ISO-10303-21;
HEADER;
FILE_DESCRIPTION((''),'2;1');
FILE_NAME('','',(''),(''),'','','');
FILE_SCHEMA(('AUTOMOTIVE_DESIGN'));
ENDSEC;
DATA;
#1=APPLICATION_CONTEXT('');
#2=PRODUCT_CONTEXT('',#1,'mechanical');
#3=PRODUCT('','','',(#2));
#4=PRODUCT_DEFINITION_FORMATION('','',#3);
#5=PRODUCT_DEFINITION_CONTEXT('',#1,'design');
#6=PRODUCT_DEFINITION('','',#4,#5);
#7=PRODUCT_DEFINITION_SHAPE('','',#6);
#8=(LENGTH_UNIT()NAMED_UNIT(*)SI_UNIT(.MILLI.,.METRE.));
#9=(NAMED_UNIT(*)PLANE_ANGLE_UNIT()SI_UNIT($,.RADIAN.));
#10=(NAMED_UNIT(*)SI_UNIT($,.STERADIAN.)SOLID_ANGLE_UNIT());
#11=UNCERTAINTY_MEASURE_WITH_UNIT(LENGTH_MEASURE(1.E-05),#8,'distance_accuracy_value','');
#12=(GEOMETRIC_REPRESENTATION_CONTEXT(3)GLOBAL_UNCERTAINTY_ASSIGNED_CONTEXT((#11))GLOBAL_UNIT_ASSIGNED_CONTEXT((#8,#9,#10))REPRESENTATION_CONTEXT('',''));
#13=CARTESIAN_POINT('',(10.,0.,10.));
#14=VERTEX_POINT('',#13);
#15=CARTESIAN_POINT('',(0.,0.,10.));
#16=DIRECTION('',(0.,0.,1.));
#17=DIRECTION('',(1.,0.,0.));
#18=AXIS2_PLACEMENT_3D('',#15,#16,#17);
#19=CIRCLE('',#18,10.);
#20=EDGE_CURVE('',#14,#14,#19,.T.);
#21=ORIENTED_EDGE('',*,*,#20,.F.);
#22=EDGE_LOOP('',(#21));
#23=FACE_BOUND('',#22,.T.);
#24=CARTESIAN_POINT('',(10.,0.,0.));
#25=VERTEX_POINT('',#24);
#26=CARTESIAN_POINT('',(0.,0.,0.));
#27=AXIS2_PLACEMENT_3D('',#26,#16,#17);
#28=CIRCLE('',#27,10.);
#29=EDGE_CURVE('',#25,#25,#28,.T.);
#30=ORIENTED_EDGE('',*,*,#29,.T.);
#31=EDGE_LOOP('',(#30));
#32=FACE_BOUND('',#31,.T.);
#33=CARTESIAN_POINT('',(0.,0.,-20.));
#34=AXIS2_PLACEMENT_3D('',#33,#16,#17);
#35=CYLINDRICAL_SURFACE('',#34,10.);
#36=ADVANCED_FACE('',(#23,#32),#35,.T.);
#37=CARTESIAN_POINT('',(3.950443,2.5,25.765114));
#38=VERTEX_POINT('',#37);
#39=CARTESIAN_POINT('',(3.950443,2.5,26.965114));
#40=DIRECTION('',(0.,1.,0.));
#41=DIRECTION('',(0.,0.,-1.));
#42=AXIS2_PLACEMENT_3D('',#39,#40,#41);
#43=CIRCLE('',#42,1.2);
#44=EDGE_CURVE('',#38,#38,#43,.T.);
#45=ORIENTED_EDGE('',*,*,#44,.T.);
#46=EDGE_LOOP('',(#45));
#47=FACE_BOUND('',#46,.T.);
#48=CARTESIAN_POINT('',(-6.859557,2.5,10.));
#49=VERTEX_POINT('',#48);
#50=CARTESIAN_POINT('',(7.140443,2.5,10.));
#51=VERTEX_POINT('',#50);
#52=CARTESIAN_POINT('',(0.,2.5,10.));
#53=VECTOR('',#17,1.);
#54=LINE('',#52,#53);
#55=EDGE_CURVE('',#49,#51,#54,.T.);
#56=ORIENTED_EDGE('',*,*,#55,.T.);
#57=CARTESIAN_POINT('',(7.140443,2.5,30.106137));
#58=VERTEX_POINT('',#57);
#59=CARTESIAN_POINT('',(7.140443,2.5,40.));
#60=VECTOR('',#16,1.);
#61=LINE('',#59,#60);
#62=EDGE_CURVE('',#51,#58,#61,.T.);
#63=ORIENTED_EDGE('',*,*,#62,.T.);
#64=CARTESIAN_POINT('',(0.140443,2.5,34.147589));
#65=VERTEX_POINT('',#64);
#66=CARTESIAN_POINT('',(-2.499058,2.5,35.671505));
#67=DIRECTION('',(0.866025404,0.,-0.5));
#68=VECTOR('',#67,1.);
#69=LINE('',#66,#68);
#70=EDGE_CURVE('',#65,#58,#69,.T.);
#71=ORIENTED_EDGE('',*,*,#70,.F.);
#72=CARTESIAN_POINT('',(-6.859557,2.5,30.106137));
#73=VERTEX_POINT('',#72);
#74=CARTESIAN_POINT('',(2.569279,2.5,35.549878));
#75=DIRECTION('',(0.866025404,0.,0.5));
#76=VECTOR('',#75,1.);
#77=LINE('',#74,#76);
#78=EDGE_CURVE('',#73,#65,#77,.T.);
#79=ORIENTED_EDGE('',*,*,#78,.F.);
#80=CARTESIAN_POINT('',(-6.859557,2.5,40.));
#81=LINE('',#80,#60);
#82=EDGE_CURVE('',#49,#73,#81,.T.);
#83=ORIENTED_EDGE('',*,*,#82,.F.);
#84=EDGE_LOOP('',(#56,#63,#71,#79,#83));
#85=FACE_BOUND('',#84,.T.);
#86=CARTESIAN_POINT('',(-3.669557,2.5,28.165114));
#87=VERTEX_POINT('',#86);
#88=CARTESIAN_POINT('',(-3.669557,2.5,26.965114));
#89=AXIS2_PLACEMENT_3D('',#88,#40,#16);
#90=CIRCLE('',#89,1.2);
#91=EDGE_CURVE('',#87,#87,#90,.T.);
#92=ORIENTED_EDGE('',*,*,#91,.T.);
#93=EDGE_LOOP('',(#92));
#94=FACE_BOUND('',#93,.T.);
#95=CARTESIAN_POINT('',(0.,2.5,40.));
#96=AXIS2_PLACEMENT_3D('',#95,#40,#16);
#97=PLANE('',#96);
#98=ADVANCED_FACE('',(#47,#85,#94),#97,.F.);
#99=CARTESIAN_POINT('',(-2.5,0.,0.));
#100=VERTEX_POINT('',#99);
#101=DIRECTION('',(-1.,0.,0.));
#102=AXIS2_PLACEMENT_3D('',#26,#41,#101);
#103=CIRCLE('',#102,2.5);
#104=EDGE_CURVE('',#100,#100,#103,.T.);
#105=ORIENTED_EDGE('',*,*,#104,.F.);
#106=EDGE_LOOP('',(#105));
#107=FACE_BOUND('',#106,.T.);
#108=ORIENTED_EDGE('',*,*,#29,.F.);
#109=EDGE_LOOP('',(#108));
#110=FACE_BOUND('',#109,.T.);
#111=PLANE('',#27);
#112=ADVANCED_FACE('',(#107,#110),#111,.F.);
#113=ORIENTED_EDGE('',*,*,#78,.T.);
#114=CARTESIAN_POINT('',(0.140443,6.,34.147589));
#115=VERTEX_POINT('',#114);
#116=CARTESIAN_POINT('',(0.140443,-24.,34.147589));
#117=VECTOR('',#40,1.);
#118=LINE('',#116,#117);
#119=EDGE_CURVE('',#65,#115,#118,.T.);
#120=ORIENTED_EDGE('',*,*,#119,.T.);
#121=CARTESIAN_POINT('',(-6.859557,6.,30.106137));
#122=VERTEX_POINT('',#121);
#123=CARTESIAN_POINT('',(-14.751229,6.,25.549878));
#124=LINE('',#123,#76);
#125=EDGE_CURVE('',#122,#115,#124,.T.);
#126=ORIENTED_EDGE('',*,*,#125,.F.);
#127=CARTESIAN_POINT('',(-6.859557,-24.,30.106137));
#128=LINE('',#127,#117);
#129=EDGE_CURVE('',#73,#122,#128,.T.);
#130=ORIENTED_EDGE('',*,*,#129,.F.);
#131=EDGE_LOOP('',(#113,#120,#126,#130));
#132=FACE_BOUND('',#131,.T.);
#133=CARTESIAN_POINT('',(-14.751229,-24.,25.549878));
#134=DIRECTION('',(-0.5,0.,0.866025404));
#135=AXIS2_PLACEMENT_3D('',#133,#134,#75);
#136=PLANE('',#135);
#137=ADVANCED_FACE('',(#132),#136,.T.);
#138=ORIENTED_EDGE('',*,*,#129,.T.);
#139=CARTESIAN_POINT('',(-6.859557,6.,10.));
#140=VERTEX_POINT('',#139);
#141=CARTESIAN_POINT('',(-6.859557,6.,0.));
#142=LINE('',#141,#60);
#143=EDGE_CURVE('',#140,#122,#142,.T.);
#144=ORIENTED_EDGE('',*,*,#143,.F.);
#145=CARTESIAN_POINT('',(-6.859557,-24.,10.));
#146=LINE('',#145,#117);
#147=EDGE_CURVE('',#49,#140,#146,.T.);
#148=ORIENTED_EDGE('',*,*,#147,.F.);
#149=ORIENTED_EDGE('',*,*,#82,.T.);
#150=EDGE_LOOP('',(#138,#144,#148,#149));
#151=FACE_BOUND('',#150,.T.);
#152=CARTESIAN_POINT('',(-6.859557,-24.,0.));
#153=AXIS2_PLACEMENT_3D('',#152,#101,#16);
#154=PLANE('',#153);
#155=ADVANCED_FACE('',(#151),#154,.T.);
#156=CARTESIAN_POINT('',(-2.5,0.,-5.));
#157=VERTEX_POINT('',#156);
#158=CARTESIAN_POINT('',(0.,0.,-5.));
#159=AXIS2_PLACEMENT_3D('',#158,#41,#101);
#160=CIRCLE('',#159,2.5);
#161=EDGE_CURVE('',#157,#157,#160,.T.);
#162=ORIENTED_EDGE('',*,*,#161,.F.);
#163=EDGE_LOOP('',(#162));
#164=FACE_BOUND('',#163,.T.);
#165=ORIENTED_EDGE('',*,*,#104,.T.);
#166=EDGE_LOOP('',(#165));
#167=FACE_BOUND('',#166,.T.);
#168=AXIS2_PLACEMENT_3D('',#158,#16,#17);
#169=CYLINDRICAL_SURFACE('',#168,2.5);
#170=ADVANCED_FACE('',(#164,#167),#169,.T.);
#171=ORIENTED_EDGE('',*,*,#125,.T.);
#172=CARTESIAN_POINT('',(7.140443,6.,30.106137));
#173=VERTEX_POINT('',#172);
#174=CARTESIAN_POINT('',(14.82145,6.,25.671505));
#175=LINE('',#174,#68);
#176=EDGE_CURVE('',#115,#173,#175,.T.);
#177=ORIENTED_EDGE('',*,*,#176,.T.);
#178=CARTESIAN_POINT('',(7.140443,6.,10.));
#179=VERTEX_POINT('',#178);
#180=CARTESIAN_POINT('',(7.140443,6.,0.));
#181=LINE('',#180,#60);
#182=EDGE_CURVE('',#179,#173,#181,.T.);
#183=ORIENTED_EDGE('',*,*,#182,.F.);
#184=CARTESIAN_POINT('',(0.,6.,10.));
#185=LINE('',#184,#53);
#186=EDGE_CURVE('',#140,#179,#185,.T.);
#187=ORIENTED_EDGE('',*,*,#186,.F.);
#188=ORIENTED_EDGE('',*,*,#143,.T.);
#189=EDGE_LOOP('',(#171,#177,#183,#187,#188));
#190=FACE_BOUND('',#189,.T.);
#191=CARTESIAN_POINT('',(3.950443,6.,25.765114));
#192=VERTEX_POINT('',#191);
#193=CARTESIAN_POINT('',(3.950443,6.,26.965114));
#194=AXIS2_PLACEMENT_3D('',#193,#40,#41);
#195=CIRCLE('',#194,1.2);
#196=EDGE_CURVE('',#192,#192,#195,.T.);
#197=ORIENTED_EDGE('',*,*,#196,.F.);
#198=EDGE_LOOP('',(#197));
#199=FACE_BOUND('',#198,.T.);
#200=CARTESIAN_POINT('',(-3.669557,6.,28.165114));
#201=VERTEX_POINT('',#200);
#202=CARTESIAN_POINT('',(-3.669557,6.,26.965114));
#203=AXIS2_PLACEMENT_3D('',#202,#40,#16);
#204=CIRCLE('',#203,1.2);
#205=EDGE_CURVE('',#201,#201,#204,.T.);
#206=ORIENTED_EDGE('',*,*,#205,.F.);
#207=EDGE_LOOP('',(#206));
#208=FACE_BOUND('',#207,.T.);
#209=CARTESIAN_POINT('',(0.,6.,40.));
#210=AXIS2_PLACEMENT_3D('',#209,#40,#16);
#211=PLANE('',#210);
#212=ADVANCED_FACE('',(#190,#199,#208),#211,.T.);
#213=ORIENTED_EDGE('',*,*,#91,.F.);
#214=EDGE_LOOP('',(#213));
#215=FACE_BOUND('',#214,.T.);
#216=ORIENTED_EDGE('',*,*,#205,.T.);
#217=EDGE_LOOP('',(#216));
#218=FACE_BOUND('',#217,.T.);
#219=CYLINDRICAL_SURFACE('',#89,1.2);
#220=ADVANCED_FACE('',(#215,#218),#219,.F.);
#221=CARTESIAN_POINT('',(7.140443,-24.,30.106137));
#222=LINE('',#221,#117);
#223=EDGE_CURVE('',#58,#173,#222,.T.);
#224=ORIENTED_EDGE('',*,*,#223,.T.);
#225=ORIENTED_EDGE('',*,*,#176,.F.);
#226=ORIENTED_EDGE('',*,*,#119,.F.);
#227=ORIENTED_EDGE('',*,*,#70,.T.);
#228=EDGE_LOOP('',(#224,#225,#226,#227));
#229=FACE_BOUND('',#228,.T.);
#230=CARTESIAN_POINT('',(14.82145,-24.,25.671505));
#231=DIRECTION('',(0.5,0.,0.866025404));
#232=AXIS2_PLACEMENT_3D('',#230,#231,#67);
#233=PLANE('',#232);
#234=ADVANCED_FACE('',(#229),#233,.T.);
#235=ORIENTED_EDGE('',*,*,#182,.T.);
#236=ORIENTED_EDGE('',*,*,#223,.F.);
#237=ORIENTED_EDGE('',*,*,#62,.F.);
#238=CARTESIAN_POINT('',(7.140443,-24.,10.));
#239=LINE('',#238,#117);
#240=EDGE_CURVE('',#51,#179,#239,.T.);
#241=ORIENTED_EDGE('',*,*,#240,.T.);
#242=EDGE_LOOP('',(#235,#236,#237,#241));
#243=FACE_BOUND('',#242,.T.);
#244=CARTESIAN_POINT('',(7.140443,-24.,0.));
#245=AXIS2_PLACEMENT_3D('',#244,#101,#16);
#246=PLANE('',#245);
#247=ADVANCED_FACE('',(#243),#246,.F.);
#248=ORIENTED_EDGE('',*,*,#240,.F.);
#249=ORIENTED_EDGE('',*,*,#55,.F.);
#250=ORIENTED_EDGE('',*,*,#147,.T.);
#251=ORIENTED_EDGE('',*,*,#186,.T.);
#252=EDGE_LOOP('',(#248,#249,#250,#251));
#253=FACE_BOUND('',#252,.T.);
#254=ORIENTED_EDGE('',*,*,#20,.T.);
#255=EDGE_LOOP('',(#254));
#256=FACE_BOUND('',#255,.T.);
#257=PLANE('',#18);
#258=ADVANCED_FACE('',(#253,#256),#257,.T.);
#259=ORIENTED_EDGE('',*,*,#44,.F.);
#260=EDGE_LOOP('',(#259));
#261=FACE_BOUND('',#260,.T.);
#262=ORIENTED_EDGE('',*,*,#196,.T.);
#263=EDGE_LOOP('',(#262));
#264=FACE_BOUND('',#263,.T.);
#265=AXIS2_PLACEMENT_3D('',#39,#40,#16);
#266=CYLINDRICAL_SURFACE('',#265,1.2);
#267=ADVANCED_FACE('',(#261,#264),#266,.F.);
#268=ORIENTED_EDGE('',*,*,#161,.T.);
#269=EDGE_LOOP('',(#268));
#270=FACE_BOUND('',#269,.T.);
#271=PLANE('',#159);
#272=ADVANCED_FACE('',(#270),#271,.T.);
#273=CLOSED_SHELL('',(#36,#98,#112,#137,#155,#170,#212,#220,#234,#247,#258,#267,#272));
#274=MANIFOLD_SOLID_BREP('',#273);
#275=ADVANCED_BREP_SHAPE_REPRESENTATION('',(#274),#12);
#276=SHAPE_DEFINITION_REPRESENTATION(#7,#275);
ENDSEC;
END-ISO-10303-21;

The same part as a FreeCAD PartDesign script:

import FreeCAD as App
import Part
import Sketcher
from FreeCAD import Vector
Q = App.Units.Quantity


def edges_at(feature, points):
    """Names of the edges that pass closest to the given points."""
    edges = feature.Shape.Edges
    near = lambda p: min(range(len(edges)), key=lambda i: edges[i].distToShape(Part.Vertex(*p))[0])
    return sorted({f"Edge{near(p) + 1}" for p in points})


def add_polygon(sketch, points):
    """Adds a closed chain of lines whose ends are joined by coincident constraints."""
    first, n = sketch.GeometryCount, len(points)
    for a, b in zip(points, points[1:] + points[:1]):
        sketch.addGeometry(Part.LineSegment(App.Vector(*a, 0), App.Vector(*b, 0)), False)
    for i in range(n):
        sketch.addConstraint(Sketcher.Constraint("Coincident", first + i, 2, first + (i + 1) % n, 1))

doc = App.newDocument("Part")
params = doc.addObject("Spreadsheet::Sheet", "Params")
for row, (alias, value) in enumerate([
    ("sketch1_diameter", "30 mm"),
    ("pad1_length", "10 mm"),
    ("sketch2_diameter", "5 mm"),
    ("pad2_length", "5 mm"),
    ("sketch3_height", "3.5 mm"),
    ("pad3_length", "30 mm"),
    ("chamfer_size", "10 mm"),
    ("chamfer2_size", "10 mm"),
    ("sketch4_diameter", "2.4 mm"),
    ("pocket1_length", "30 mm"),
    ("sketch5_height", "20 mm"),
    ("pocket2_length", "30 mm"),
    ("sketch6_diameter", "30 mm"),
    ("sketch6_diameter2", "20 mm"),
    ("pocket3_length", "30 mm"),
    ("pad4_length", "3.5 mm"),
    ("sketch8_diameter", "2.4 mm"),
    ("pocket4_length", "3.5 mm"),
], start=1):
    params.set(f"A{row}", alias)
    params.set(f"B{row}", "=" + value)
    params.setAlias(f"B{row}", alias)

body = doc.addObject("PartDesign::Body", "Body")

# Sketch on XY plane
sketch1 = doc.addObject("Sketcher::SketchObject", "Sketch")
body.addObject(sketch1)
sketch1.AttachmentSupport = (doc.XY_Plane, [""])
sketch1.MapMode = "FlatFace"
sketch1.addGeometry(Part.Circle(Vector(0, 0, 0), Vector(0, 0, 1), 15), False)
sketch1.addConstraint([
    Sketcher.Constraint("Coincident", 0, 3, -1, 1),
    Sketcher.Constraint("Diameter", 0, Q("30 mm")),
])
sketch1.setExpression("Constraints[1]", "Params.sketch1_diameter")
pad1 = doc.addObject("PartDesign::Pad", "Pad")
body.addObject(pad1)
pad1.Profile = sketch1
pad1.setExpression("Length", "Params.pad1_length")

# Sketch on XY plane
sketch2 = doc.addObject("Sketcher::SketchObject", "Sketch001")
body.addObject(sketch2)
sketch2.AttachmentSupport = (doc.XY_Plane, [""])
sketch2.MapMode = "FlatFace"
sketch2.addGeometry(Part.Circle(Vector(0, 0, 0), Vector(0, 0, 1), 2.5), False)
sketch2.addConstraint([
    Sketcher.Constraint("Coincident", 0, 3, -1, 1),
    Sketcher.Constraint("Diameter", 0, Q("5 mm")),
])
sketch2.setExpression("Constraints[1]", "Params.sketch2_diameter")
pad2 = doc.addObject("PartDesign::Pad", "Pad001")
body.addObject(pad2)
pad2.Profile = sketch2
pad2.setExpression("Length", "Params.pad2_length")
pad2.Reversed = True

# Sketch on XY plane
sketch3 = doc.addObject("Sketcher::SketchObject", "Sketch002")
body.addObject(sketch3)
sketch3.AttachmentSupport = (doc.XY_Plane, [""])
sketch3.MapMode = "FlatFace"
sketch3.AttachmentOffset = App.Placement(Vector(0, 0, 10), App.Rotation())
add_polygon(sketch3, [(-13.5, 6), (-13.5, 2.5), (13.7, 2.5), (13.7, 6)])  # lines 0-3
sketch3.addConstraint([
    Sketcher.Constraint("Vertical", 0),
    Sketcher.Constraint("Horizontal", 1),
    Sketcher.Constraint("Vertical", 2),
    Sketcher.Constraint("Horizontal", 3),
    Sketcher.Constraint("DistanceY", 0, 2, 0, 1, Q("3.5 mm")),
    Sketcher.Constraint("DistanceY", -1, 1, 2, 2, Q("6 mm")),
    Sketcher.Constraint("DistanceX", 1, 1, 1, 2, Q("27.214568 mm")),
    Sketcher.Constraint("DistanceX", 0, 2, -1, 1, Q("13.466841 mm")),
])
sketch3.setExpression("Constraints[8]", "Params.sketch3_height")
pad3 = doc.addObject("PartDesign::Pad", "Pad002")
body.addObject(pad3)
pad3.Profile = sketch3
pad3.setExpression("Length", "Params.pad3_length")
doc.recompute()

chamfer = doc.addObject("PartDesign::Chamfer", "Chamfer")
body.addObject(chamfer)
chamfer.Base = (pad3, edges_at(pad3, [(13.748, 4.25, 40)]))
chamfer.setExpression("Size", "Params.chamfer_size")
doc.recompute()

chamfer2 = doc.addObject("PartDesign::Chamfer", "Chamfer001")
body.addObject(chamfer2)
chamfer2.Base = (chamfer, edges_at(chamfer, [(-13.467, 4.25, 40)]))
chamfer2.setExpression("Size", "Params.chamfer2_size")

# Sketch on XZ plane
sketch4 = doc.addObject("Sketcher::SketchObject", "Sketch003")
body.addObject(sketch4)
sketch4.AttachmentSupport = (doc.XZ_Plane, [""])
sketch4.MapMode = "FlatFace"
sketch4.AttachmentOffset = App.Placement(Vector(0, 0, -6), App.Rotation())
sketch4.addGeometry([
    Part.Circle(Vector(-2.7, 26.1, 0), Vector(0, 0, 1), 1.2),
    Part.Circle(Vector(3, 26.1, 0), Vector(0, 0, 1), 1.2),
], False)
sketch4.addConstraint([
    Sketcher.Constraint("Equal", 0, 1),
    Sketcher.Constraint("Horizontal", 0, 3, 1, 3),
    Sketcher.Constraint("Diameter", 0, Q("2.4 mm")),
    Sketcher.Constraint("DistanceX", 0, 3, 1, 3, Q("5.62 mm")),
    Sketcher.Constraint("DistanceX", 0, 3, -1, 1, Q("2.669557 mm")),
    Sketcher.Constraint("DistanceY", -1, 1, 0, 3, Q("26.064685 mm")),
])
sketch4.setExpression("Constraints[2]", "Params.sketch4_diameter")
pocket1 = doc.addObject("PartDesign::Pocket", "Pocket")
body.addObject(pocket1)
pocket1.Profile = sketch4
pocket1.setExpression("Length", "Params.pocket1_length")
pocket1.Reversed = True

# Sketch on XZ plane
sketch5 = doc.addObject("Sketcher::SketchObject", "Sketch004")
body.addObject(sketch5)
sketch5.AttachmentSupport = (doc.XZ_Plane, [""])
sketch5.MapMode = "FlatFace"
sketch5.AttachmentOffset = App.Placement(Vector(0, 0, -6), App.Rotation())
add_polygon(sketch5, [(-7, 30), (-7, 10), (-13, 10), (-13, 30), (-3, 40), (4, 40), (14, 30), (14, 10), (7, 10), (7, 30), (0, 34)])  # lines 0-10
sketch5.addConstraint([
    Sketcher.Constraint("Vertical", 0),
    Sketcher.Constraint("Horizontal", 1),
    Sketcher.Constraint("Vertical", 2),
    Sketcher.Constraint("Horizontal", 4),
    Sketcher.Constraint("Vertical", 6),
    Sketcher.Constraint("Horizontal", 7),
    Sketcher.Constraint("Vertical", 8),
    Sketcher.Constraint("Perpendicular", 3, 5),
    Sketcher.Constraint("Horizontal", 2, 2, 5, 2),
    Sketcher.Constraint("Horizontal", 1, 2, 6, 2),
    Sketcher.Constraint("Horizontal", 8, 2, 10, 2),
    Sketcher.Constraint("Equal", 1, 7),
    Sketcher.Constraint("Equal", 3, 5),
    Sketcher.Constraint("Equal", 9, 10),
    Sketcher.Constraint("DistanceY", 2, 1, 2, 2, Q("20 mm")),
    Sketcher.Constraint("Angle", 9, Q("150 deg")),
    Sketcher.Constraint("DistanceY", -1, 1, 0, 2, Q("10 mm")),
    Sketcher.Constraint("DistanceY", -1, 1, 3, 2, Q("40 mm")),
    Sketcher.Constraint("DistanceX", 0, 2, 7, 2, Q("14 mm")),
    Sketcher.Constraint("DistanceX", 4, 1, 4, 2, Q("7.214568 mm")),
    Sketcher.Constraint("DistanceY", 0, 2, 0, 1, Q("20.106137 mm")),
    Sketcher.Constraint("DistanceX", 1, 2, -1, 1, Q("13.466841 mm")),
])
sketch5.setExpression("Constraints[25]", "Params.sketch5_height")
pocket2 = doc.addObject("PartDesign::Pocket", "Pocket001")
body.addObject(pocket2)
pocket2.Profile = sketch5
pocket2.setExpression("Length", "Params.pocket2_length")
pocket2.Reversed = True

# Sketch on XY plane
sketch6 = doc.addObject("Sketcher::SketchObject", "Sketch005")
body.addObject(sketch6)
sketch6.AttachmentSupport = (doc.XY_Plane, [""])
sketch6.MapMode = "FlatFace"
sketch6.AttachmentOffset = App.Placement(Vector(0, 0, -20), App.Rotation())
sketch6.addGeometry([
    Part.Circle(Vector(0, 0, 0), Vector(0, 0, 1), 15),
    Part.Circle(Vector(0, 0, 0), Vector(0, 0, 1), 10),
], False)
sketch6.addConstraint([
    Sketcher.Constraint("Coincident", 0, 3, -1, 1),
    Sketcher.Constraint("Coincident", 1, 3, -1, 1),
    Sketcher.Constraint("Diameter", 0, Q("30 mm")),
    Sketcher.Constraint("Diameter", 1, Q("20 mm")),
])
sketch6.setExpression("Constraints[2]", "Params.sketch6_diameter")
sketch6.setExpression("Constraints[3]", "Params.sketch6_diameter2")
pocket3 = doc.addObject("PartDesign::Pocket", "Pocket002")
body.addObject(pocket3)
pocket3.Profile = sketch6
pocket3.setExpression("Length", "Params.pocket3_length")
pocket3.Reversed = True

# Sketch on XZ plane
sketch7 = doc.addObject("Sketcher::SketchObject", "Sketch006")
body.addObject(sketch7)
sketch7.AttachmentSupport = (doc.XZ_Plane, [""])
sketch7.MapMode = "FlatFace"
sketch7.AttachmentOffset = App.Placement(Vector(0, 0, -6), App.Rotation())
sketch7.addGeometry([
    Part.Circle(Vector(-2.7, 26.1, 0), Vector(0, 0, 1), 1.2),
    Part.Circle(Vector(3, 26.1, 0), Vector(0, 0, 1), 1.2),
], False)
sketch7.addConstraint([
    Sketcher.Constraint("Horizontal", 0, 3, 1, 3),
    Sketcher.Constraint("Diameter", 0, Q("2.479579 mm")),
    Sketcher.Constraint("DistanceX", 0, 3, 1, 3, Q("5.62 mm")),
    Sketcher.Constraint("Diameter", 1, Q("2.457755 mm")),
    Sketcher.Constraint("DistanceX", 0, 3, -1, 1, Q("2.669557 mm")),
    Sketcher.Constraint("DistanceY", -1, 1, 0, 3, Q("26.064685 mm")),
])
pad4 = doc.addObject("PartDesign::Pad", "Pad003")
body.addObject(pad4)
pad4.Profile = sketch7
pad4.setExpression("Length", "Params.pad4_length")

# Sketch on XZ plane
sketch8 = doc.addObject("Sketcher::SketchObject", "Sketch007")
body.addObject(sketch8)
sketch8.AttachmentSupport = (doc.XZ_Plane, [""])
sketch8.MapMode = "FlatFace"
sketch8.AttachmentOffset = App.Placement(Vector(0, 0, -6), App.Rotation())
sketch8.addGeometry([
    Part.Circle(Vector(-3.7, 27, 0), Vector(0, 0, 1), 1.2),
    Part.Circle(Vector(4, 27, 0), Vector(0, 0, 1), 1.2),
], False)
sketch8.addConstraint([
    Sketcher.Constraint("Equal", 0, 1),
    Sketcher.Constraint("Horizontal", 0, 3, 1, 3),
    Sketcher.Constraint("Diameter", 0, Q("2.4 mm")),
    Sketcher.Constraint("DistanceX", 0, 3, 1, 3, Q("7.62 mm")),
    Sketcher.Constraint("DistanceX", 0, 3, -1, 1, Q("3.669557 mm")),
    Sketcher.Constraint("DistanceY", -1, 1, 0, 3, Q("26.965114 mm")),
])
sketch8.setExpression("Constraints[2]", "Params.sketch8_diameter")
pocket4 = doc.addObject("PartDesign::Pocket", "Pocket003")
body.addObject(pocket4)
pocket4.Profile = sketch8
pocket4.setExpression("Length", "Params.pocket4_length")
pocket4.Reversed = True

doc.recompute()
